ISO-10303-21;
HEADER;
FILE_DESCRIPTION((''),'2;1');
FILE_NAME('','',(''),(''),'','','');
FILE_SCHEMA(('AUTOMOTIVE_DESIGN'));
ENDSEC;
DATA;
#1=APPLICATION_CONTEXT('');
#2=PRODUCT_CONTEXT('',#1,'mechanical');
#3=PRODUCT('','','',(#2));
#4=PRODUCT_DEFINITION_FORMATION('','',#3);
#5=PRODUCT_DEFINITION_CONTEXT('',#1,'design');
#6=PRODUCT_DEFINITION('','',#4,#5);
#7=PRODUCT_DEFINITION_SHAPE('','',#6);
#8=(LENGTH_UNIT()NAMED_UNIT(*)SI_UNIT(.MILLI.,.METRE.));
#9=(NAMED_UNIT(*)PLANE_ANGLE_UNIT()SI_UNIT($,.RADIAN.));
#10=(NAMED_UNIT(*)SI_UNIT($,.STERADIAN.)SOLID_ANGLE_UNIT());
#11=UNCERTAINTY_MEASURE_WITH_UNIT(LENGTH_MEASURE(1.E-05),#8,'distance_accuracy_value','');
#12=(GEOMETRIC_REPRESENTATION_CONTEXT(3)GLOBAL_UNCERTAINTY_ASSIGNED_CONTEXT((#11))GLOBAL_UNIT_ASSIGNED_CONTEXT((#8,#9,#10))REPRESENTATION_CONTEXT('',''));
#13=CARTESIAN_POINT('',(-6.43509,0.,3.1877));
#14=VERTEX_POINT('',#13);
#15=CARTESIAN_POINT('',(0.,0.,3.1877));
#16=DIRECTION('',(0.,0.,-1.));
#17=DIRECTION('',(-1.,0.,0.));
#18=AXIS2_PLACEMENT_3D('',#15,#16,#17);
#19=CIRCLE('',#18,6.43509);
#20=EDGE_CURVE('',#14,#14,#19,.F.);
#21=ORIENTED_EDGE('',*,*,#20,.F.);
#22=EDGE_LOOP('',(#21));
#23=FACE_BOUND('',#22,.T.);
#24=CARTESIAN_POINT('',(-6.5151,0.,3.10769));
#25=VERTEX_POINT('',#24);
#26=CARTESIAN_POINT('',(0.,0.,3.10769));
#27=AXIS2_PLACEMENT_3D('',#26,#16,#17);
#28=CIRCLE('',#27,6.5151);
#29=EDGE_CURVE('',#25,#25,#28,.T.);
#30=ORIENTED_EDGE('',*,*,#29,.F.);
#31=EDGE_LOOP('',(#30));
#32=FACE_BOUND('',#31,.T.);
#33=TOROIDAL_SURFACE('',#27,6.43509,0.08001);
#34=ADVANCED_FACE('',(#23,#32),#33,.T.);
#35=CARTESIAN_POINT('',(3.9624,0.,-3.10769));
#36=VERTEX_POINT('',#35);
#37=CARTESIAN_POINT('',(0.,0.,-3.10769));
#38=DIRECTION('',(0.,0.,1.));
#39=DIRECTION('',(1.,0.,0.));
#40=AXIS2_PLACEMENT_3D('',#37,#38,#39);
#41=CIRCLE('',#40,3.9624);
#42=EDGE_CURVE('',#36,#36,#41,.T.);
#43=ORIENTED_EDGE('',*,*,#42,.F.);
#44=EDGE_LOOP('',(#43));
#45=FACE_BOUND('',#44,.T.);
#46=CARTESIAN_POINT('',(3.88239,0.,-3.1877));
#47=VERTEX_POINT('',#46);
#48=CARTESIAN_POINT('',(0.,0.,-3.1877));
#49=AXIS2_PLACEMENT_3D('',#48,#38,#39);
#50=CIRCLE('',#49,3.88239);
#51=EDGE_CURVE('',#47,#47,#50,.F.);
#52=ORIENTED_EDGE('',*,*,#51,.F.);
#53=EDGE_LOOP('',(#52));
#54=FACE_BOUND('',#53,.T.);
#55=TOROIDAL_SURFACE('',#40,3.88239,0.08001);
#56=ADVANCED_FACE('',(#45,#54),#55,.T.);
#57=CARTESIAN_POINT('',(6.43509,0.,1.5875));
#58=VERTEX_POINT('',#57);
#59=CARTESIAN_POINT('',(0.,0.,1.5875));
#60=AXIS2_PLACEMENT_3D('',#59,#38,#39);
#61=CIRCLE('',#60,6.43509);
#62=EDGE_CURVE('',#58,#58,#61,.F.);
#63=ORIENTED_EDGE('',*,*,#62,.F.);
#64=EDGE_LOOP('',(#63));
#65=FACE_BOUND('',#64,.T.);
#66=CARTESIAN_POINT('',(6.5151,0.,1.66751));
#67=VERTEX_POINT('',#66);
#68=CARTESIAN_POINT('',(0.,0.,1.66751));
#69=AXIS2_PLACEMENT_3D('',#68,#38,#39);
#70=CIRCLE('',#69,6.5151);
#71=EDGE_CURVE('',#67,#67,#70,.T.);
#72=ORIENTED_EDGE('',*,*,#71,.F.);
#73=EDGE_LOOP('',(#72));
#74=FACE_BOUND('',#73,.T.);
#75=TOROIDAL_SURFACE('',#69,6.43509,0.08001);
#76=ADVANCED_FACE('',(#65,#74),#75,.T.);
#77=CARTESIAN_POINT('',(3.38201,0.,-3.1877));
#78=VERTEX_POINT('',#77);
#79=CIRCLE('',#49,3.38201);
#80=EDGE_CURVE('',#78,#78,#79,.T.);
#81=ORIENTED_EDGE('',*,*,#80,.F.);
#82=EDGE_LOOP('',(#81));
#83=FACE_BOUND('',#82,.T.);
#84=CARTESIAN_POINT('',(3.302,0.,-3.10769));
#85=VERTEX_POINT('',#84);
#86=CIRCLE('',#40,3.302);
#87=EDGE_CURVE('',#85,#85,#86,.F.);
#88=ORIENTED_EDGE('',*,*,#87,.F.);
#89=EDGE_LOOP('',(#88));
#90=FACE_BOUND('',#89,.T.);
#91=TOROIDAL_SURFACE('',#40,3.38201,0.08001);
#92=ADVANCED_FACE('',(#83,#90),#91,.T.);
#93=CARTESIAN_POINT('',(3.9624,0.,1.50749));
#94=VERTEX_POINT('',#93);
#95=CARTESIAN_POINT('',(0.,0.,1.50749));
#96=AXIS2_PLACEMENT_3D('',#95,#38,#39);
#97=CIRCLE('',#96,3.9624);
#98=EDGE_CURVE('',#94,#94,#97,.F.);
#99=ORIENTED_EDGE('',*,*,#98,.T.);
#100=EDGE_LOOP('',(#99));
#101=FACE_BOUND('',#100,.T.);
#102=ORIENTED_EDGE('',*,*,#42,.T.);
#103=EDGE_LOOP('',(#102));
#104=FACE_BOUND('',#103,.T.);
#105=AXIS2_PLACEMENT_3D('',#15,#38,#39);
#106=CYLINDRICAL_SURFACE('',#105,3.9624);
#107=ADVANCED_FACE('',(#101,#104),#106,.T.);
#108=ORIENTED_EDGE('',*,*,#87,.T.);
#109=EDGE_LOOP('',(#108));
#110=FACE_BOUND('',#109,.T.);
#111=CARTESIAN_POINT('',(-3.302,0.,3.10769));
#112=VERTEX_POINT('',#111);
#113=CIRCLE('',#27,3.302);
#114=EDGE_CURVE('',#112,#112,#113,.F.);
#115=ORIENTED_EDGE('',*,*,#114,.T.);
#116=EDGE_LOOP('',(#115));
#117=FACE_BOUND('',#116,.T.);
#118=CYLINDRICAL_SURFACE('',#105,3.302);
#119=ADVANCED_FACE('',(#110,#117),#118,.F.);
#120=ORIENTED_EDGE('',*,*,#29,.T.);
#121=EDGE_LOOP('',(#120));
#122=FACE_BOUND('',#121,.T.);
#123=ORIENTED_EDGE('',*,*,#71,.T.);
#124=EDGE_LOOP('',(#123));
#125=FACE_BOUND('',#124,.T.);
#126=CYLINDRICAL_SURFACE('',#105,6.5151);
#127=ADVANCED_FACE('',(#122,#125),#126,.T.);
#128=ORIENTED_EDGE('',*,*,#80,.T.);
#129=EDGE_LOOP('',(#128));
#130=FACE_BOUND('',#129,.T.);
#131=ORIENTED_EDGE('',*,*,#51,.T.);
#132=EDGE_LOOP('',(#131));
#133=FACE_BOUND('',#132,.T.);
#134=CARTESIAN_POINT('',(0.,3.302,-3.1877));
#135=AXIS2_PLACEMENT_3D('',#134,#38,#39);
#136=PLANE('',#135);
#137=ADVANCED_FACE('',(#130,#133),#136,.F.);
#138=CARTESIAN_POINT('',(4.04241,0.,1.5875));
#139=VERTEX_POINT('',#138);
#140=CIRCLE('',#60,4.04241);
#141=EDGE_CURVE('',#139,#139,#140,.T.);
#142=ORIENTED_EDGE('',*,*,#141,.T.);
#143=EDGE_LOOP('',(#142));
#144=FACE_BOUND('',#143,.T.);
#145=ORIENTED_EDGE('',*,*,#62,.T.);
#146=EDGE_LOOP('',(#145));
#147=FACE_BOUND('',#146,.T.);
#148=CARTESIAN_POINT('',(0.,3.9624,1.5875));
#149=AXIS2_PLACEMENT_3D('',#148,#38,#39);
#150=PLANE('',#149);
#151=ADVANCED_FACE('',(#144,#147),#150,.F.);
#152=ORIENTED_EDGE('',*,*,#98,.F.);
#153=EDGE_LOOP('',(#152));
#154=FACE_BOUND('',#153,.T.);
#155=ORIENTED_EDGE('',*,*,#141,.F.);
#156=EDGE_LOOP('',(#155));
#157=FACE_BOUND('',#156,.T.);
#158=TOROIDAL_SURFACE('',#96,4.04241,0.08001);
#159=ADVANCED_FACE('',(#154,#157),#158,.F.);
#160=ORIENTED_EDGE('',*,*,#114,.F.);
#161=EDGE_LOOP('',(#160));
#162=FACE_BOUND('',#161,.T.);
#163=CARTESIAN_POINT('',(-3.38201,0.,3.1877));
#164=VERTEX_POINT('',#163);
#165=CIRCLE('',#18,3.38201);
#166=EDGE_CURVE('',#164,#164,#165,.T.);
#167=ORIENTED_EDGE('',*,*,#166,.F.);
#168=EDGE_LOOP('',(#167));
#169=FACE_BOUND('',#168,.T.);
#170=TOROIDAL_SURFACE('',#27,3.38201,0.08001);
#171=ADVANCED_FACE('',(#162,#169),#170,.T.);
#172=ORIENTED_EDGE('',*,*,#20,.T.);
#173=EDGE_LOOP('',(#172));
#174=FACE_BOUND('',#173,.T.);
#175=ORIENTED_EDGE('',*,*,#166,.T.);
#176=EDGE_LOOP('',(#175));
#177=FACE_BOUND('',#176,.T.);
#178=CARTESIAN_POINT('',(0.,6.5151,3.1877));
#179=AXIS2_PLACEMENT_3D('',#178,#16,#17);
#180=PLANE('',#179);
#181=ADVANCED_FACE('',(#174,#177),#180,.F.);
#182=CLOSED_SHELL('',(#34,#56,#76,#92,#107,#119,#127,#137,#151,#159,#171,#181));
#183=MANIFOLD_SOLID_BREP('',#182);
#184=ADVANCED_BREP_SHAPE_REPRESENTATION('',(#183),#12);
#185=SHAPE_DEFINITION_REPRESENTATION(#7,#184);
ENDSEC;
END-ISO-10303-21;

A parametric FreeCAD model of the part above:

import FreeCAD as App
import Part
import Sketcher
from FreeCAD import Vector
Q = App.Units.Quantity


def edges_at(feature, points):
    """Names of the edges that pass closest to the given points."""
    edges = feature.Shape.Edges
    near = lambda p: min(range(len(edges)), key=lambda i: edges[i].distToShape(Part.Vertex(*p))[0])
    return sorted({f"Edge{near(p) + 1}" for p in points})

doc = App.newDocument("Part")
body = doc.addObject("PartDesign::Body", "Body")

sketch1 = body.newObject("Sketcher::SketchObject", "Sketch")
sketch1.AttachmentSupport = (doc.getObject("YZ_Plane"), [""])
sketch1.MapMode = "FlatFace"
sketch1.addGeometry(Part.LineSegment(Vector(3.302, 3.1877, 0), Vector(3.302, -3.1877, 0)), False)
sketch1.addGeometry(Part.LineSegment(Vector(3.302, -3.1877, 0), Vector(3.9624, -3.1877, 0)), False)
sketch1.addGeometry(Part.LineSegment(Vector(3.9624, -3.1877, 0), Vector(3.9624, 1.5875, 0)), False)
sketch1.addGeometry(Part.LineSegment(Vector(3.9624, 1.5875, 0), Vector(6.5151, 1.5875, 0)), False)
sketch1.addGeometry(Part.LineSegment(Vector(6.5151, 1.5875, 0), Vector(6.5151, 3.1877, 0)), False)
sketch1.addGeometry(Part.LineSegment(Vector(6.5151, 3.1877, 0), Vector(3.302, 3.1877, 0)), False)
sketch1.addConstraint(Sketcher.Constraint("Coincident", 0, 2, 1, 1))
sketch1.addConstraint(Sketcher.Constraint("Coincident", 1, 2, 2, 1))
sketch1.addConstraint(Sketcher.Constraint("Coincident", 2, 2, 3, 1))
sketch1.addConstraint(Sketcher.Constraint("Coincident", 3, 2, 4, 1))
sketch1.addConstraint(Sketcher.Constraint("Coincident", 4, 2, 5, 1))
sketch1.addConstraint(Sketcher.Constraint("Coincident", 5, 2, 0, 1))
sketch1.addConstraint(Sketcher.Constraint("Vertical", 0))
sketch1.addConstraint(Sketcher.Constraint("Horizontal", 1))
sketch1.addConstraint(Sketcher.Constraint("Vertical", 2))
sketch1.addConstraint(Sketcher.Constraint("Horizontal", 3))
sketch1.addConstraint(Sketcher.Constraint("Vertical", 4))
sketch1.addConstraint(Sketcher.Constraint("Horizontal", 5))
sketch1.addConstraint(Sketcher.Constraint("DistanceX", 1, 1, 1, 2, Q("0.026 in")))
sketch1.addConstraint(Sketcher.Constraint("DistanceY", 0, 2, 0, 1, Q("0.251 in")))
sketch1.addConstraint(Sketcher.Constraint("DistanceY", 2, 1, 2, 2, Q("0.188 in")))
sketch1.addConstraint(Sketcher.Constraint("DistanceX", -1, 1, 0, 2, Q("0.13 in")))
sketch1.addConstraint(Sketcher.Constraint("DistanceX", 3, 1, 3, 2, Q("0.1005 in")))
sketch1.addConstraint(Sketcher.Constraint("DistanceY", -1, 1, 2, 2, Q("0.0625 in")))
revolution = body.newObject("PartDesign::Revolution", "Revolution")
revolution.Profile = sketch1
revolution.ReferenceAxis = (sketch1, ["V_Axis"])
revolution.Angle = 360
doc.recompute()

fillet = body.newObject("PartDesign::Fillet", "Fillet")
fillet.Base = (revolution, edges_at(revolution, [
    (-6.515, 0, 3.188),
    (-6.515, 0, 1.587),
    (-3.962, 0, 1.587),
    (-3.962, 0, -3.188),
    (-3.302, 0, -3.188),
    (-3.302, 0, 3.188),
]))
fillet.Radius = 0.08001

doc.recompute()
